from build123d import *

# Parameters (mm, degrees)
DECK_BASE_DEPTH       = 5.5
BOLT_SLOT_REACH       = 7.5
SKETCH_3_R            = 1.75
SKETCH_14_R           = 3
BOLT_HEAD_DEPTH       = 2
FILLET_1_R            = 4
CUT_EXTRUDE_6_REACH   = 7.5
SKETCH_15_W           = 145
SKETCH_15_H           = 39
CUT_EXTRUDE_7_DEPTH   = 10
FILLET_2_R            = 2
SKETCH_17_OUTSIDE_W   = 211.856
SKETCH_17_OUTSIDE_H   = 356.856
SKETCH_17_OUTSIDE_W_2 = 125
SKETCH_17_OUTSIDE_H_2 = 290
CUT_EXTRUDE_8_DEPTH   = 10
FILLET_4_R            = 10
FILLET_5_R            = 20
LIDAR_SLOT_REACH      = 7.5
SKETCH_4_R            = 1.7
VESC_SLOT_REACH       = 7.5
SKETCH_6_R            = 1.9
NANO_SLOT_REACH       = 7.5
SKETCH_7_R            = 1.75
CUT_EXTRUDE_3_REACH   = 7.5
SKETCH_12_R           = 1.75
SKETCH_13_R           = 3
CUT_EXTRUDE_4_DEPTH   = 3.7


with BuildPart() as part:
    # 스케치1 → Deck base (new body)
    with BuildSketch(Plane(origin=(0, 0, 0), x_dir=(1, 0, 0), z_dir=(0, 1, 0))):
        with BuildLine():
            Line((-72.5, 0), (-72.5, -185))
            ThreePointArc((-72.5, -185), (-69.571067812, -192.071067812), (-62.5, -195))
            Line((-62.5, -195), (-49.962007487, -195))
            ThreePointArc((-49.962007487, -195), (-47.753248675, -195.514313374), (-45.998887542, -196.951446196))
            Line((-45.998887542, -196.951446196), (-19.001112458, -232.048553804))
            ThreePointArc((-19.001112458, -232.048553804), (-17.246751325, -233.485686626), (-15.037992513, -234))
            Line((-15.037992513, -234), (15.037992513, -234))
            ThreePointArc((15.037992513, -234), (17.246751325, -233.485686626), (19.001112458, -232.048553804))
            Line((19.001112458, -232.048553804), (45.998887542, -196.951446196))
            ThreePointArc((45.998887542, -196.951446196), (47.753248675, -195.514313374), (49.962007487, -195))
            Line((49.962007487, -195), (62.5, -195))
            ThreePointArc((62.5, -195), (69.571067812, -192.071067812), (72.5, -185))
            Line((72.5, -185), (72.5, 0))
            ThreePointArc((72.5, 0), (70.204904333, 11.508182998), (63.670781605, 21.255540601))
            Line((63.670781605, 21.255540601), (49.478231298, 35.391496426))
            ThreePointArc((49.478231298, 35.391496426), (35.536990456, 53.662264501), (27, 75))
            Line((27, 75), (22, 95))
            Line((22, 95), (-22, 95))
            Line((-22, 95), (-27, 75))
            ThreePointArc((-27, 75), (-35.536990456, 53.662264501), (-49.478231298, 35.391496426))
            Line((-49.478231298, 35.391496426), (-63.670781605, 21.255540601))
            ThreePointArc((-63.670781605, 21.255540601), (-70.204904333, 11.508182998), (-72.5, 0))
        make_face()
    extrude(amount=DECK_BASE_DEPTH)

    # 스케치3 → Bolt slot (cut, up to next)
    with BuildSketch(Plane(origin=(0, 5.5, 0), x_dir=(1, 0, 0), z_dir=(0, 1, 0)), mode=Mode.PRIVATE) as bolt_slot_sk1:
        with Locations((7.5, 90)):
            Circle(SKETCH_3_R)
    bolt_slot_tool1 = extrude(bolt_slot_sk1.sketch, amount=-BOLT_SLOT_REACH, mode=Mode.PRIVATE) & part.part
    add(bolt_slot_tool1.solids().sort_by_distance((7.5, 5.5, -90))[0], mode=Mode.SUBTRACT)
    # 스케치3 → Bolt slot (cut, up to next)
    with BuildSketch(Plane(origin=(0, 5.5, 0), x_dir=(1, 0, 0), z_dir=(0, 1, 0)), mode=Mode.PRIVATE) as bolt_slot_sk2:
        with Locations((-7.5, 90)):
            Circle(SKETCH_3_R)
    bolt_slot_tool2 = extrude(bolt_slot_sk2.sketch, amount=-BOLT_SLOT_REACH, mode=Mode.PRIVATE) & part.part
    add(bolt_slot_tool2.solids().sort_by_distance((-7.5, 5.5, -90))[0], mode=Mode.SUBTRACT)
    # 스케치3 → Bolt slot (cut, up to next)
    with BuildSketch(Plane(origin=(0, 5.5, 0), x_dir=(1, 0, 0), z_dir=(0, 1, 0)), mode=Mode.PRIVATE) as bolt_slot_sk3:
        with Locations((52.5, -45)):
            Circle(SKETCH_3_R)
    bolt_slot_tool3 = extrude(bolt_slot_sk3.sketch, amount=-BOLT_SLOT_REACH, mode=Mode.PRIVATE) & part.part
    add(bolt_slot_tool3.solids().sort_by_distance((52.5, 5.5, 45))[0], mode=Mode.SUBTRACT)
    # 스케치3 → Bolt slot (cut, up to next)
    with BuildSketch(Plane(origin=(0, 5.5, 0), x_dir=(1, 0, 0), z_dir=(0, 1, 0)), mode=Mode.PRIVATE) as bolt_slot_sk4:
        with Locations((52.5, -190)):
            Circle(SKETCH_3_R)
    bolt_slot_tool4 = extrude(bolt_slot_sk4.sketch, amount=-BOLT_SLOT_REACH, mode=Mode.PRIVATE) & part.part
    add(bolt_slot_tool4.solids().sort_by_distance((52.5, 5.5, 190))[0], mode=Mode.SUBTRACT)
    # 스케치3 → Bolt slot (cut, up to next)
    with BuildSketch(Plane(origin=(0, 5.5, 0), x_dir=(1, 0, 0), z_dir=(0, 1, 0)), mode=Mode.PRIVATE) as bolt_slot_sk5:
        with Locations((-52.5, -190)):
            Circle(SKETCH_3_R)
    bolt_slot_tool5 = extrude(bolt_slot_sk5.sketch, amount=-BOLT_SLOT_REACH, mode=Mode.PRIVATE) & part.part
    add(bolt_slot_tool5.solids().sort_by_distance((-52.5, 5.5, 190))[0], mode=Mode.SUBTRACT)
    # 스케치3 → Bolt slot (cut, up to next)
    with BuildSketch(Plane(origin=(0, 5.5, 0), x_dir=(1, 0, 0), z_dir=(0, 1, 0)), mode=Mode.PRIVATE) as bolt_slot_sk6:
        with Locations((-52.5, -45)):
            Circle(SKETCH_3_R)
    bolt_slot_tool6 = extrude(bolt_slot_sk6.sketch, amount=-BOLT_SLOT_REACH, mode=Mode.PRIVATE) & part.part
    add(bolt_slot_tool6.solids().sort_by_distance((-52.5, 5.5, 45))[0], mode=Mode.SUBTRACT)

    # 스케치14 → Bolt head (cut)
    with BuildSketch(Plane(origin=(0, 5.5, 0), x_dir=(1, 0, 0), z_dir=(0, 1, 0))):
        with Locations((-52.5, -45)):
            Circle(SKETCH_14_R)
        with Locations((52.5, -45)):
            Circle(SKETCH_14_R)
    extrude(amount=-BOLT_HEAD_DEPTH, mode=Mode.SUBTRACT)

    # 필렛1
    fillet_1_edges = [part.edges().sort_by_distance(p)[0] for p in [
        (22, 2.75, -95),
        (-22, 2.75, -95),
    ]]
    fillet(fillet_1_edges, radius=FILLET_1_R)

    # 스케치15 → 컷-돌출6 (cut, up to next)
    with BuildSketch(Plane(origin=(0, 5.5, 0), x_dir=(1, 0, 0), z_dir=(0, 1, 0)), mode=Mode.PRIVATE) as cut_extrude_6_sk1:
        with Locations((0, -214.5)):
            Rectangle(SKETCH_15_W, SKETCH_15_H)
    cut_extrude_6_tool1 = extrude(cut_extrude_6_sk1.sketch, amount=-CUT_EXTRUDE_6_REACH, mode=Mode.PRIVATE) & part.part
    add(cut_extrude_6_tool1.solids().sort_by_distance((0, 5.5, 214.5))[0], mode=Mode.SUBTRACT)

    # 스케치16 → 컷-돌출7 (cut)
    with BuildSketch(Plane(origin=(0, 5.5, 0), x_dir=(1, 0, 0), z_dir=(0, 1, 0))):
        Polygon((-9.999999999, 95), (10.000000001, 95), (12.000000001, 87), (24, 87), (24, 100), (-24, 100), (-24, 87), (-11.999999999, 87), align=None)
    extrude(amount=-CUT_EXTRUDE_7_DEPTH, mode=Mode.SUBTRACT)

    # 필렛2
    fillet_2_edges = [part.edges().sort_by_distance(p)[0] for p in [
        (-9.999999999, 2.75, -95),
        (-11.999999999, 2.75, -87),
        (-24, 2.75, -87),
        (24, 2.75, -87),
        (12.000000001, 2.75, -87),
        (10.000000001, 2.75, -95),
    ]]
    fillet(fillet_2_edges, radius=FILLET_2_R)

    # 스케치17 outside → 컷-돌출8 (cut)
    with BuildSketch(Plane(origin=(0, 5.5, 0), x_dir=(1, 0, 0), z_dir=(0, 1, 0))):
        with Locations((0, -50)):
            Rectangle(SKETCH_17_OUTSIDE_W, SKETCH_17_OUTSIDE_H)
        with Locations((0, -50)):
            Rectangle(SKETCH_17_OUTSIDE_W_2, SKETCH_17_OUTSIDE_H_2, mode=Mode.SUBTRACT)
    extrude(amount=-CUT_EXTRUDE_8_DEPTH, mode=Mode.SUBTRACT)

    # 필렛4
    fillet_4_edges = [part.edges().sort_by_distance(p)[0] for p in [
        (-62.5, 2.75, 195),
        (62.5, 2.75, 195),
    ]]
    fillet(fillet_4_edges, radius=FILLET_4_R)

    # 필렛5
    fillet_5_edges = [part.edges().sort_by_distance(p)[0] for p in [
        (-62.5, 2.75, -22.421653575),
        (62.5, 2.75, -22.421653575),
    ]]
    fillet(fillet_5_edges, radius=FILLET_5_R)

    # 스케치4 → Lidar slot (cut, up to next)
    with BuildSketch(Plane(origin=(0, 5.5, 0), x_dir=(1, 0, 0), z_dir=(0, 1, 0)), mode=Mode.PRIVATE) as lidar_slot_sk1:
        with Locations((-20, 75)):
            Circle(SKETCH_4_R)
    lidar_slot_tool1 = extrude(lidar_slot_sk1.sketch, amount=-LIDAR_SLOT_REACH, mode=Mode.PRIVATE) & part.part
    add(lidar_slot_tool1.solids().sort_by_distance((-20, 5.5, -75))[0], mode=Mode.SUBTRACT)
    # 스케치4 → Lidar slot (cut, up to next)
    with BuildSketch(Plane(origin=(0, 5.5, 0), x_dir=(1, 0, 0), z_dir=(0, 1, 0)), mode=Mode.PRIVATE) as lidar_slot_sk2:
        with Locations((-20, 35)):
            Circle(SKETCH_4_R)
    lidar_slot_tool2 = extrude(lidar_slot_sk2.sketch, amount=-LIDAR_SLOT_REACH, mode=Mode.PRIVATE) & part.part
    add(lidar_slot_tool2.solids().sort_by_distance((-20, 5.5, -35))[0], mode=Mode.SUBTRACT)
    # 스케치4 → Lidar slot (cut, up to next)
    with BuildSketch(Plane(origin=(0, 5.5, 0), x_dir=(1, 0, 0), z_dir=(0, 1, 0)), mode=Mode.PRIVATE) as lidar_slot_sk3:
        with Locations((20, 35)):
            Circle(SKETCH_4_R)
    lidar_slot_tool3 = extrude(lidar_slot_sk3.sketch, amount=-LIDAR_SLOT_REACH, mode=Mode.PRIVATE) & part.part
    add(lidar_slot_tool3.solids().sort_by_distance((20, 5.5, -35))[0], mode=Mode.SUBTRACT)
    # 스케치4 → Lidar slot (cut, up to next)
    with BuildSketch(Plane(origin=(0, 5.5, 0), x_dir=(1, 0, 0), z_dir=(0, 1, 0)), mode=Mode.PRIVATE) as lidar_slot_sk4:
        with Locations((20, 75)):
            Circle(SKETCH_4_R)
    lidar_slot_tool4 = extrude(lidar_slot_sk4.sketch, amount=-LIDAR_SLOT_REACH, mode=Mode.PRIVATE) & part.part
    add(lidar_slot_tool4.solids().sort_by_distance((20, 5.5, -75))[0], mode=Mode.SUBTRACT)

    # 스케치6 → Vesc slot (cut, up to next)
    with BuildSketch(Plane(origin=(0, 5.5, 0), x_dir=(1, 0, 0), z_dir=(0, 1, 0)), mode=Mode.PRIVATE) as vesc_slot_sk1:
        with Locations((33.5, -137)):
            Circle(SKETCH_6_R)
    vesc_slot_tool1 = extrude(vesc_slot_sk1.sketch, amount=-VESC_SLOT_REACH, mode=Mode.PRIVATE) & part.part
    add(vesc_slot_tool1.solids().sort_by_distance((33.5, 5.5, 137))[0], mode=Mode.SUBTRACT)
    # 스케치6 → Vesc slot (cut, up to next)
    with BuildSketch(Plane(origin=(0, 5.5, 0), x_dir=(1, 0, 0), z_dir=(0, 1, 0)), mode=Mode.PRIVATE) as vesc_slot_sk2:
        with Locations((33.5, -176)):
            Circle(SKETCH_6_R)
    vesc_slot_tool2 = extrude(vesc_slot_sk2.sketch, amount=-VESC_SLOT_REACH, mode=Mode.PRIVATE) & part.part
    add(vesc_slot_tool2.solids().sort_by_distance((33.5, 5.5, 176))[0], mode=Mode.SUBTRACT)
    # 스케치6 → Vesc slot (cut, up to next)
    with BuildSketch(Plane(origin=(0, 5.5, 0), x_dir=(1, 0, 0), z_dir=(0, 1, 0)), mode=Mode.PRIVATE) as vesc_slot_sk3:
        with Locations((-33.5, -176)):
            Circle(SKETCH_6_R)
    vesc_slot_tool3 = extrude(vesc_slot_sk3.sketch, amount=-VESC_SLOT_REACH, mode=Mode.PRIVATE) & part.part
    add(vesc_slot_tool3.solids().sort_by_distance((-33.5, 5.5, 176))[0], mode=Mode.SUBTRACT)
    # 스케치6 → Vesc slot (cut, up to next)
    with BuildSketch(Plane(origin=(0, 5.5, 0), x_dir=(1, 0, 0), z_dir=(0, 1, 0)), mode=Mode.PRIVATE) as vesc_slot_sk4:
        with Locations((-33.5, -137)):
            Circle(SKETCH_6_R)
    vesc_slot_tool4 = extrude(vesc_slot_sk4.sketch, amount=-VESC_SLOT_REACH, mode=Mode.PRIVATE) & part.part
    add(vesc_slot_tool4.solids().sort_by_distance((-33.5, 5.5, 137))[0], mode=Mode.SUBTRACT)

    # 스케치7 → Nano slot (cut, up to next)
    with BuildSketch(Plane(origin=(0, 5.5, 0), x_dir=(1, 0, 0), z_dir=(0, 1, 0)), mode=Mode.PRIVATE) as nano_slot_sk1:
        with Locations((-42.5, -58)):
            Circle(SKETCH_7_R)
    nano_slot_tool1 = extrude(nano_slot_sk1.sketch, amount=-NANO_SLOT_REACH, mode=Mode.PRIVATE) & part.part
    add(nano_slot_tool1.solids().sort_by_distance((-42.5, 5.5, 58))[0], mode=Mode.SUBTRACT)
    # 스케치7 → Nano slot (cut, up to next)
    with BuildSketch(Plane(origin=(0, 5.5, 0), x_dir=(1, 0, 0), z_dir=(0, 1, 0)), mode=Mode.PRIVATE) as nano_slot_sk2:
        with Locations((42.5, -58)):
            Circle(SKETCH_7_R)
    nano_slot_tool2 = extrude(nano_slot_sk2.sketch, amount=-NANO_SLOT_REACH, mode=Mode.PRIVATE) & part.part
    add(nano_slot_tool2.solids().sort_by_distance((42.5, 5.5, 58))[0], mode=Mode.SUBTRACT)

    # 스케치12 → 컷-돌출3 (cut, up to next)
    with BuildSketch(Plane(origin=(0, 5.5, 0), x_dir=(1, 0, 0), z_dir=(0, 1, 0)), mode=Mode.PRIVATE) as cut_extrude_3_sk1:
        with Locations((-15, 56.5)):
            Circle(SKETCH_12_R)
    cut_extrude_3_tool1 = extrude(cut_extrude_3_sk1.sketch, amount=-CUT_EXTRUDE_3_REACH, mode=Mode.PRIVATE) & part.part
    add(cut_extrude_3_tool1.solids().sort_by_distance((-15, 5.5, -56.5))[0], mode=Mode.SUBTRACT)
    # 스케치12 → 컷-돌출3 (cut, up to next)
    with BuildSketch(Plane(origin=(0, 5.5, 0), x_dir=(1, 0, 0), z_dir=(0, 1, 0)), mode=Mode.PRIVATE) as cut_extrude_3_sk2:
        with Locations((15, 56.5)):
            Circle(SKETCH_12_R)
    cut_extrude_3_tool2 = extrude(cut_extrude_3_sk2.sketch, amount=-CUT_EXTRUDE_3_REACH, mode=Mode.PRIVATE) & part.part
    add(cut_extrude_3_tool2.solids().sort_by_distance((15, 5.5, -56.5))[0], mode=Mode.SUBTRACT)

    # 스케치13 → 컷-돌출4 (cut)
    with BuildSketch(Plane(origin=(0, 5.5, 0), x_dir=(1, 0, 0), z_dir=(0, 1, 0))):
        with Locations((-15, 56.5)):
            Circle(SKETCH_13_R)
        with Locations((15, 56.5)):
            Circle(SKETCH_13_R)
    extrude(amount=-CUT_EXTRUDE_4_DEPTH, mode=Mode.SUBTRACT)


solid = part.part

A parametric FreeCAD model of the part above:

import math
import FreeCAD as App
import Part
import Sketcher
from FreeCAD import Vector
Q = App.Units.Quantity


def edges_at(feature, points):
    """Names of the edges that pass closest to the given points."""
    edges = feature.Shape.Edges
    near = lambda p: min(range(len(edges)), key=lambda i: edges[i].distToShape(Part.Vertex(*p))[0])
    return sorted({f"Edge{near(p) + 1}" for p in points})

doc = App.newDocument("Part")
params = doc.addObject("Spreadsheet::Sheet", "Params")
for row, (alias, value) in enumerate([
    ("sketch1_radius", "10 mm"),
    ("sketch1_radius2", "5 mm"),
    ("sketch1_radius3", "30 mm"),
    ("sketch1_radius4", "85 mm"),
    ("sketch1_width", "44 mm"),
    ("pad1_length", "5.5 mm"),
    ("sketch2_diameter", "3.5 mm"),
    ("sketch3_diameter", "3.5 mm"),
    ("sketch4_diameter", "3.5 mm"),
    ("sketch5_diameter", "3.5 mm"),
    ("sketch6_diameter", "3.5 mm"),
    ("sketch7_diameter", "3.5 mm"),
    ("sketch8_diameter", "6 mm"),
    ("pocket7_length", "2 mm"),
    ("fillet_radius", "4 mm"),
    ("sketch9_width", "145 mm"),
    ("sketch9_height", "39 mm"),
    ("sketch10_width", "20 mm"),
    ("sketch10_width2", "12 mm"),
    ("sketch10_width3", "48 mm"),
    ("sketch10_height", "13 mm"),
    ("pocket9_length", "10 mm"),
    ("fillet2_radius", "2 mm"),
    ("sketch11_width", "125 mm"),
    ("sketch11_height", "290 mm"),
    ("pocket10_length", "10 mm"),
    ("fillet3_radius", "10 mm"),
    ("fillet4_radius", "20 mm"),
    ("sketch12_diameter", "3.4 mm"),
    ("sketch13_diameter", "3.4 mm"),
    ("sketch14_diameter", "3.4 mm"),
    ("sketch15_diameter", "3.4 mm"),
    ("sketch16_diameter", "3.8 mm"),
    ("sketch17_diameter", "3.8 mm"),
    ("sketch18_diameter", "3.8 mm"),
    ("sketch19_diameter", "3.8 mm"),
    ("sketch20_diameter", "3.5 mm"),
    ("sketch21_diameter", "3.5 mm"),
    ("sketch22_diameter", "3.5 mm"),
    ("sketch23_diameter", "3.5 mm"),
    ("sketch24_diameter", "6 mm"),
    ("pocket23_length", "3.7 mm"),
], start=1):
    params.set(f"A{row}", alias)
    params.set(f"B{row}", "=" + value)
    params.setAlias(f"B{row}", alias)

body = doc.addObject("PartDesign::Body", "Body")

sketch1 = body.newObject("Sketcher::SketchObject", "Sketch")
sketch1.AttachmentSupport = (doc.getObject("XZ_Plane"), [""])
sketch1.MapMode = "FlatFace"
sketch1.addGeometry([
    Part.LineSegment(Vector(-72.5, 0, 0), Vector(-72.5, 185, 0)),
    Part.ArcOfCircle(Part.Circle(Vector(-62.5, 185, 0), Vector(0, 0, 1), 10), math.radians(90), math.radians(180)),
    Part.LineSegment(Vector(-62.5, 195, 0), Vector(-49.962007, 195, 0)),
    Part.ArcOfCircle(Part.Circle(Vector(-49.962007, 200, 0), Vector(0, 0, 1), 5), math.radians(-90), math.radians(-37.568592)),
    Part.LineSegment(Vector(-45.998888, 196.951446, 0), Vector(-19.001112, 232.048554, 0)),
    Part.ArcOfCircle(Part.Circle(Vector(-15.037993, 229, 0), Vector(0, 0, 1), 5), math.radians(90), math.radians(142.431408)),
    Part.LineSegment(Vector(-15.037993, 234, 0), Vector(15.037993, 234, 0)),
    Part.ArcOfCircle(Part.Circle(Vector(15.037993, 229, 0), Vector(0, 0, 1), 5), math.radians(37.568592), math.radians(90)),
    Part.LineSegment(Vector(19.001112, 232.048554, 0), Vector(45.998888, 196.951446, 0)),
    Part.ArcOfCircle(Part.Circle(Vector(49.962007, 200, 0), Vector(0, 0, 1), 5), math.radians(-142.431408), math.radians(-90)),
    Part.LineSegment(Vector(49.962007, 195, 0), Vector(62.5, 195, 0)),
    Part.ArcOfCircle(Part.Circle(Vector(62.5, 185, 0), Vector(0, 0, 1), 10), math.radians(0), math.radians(90)),
    Part.LineSegment(Vector(72.5, 185, 0), Vector(72.5, 0, 0)),
    Part.ArcOfCircle(Part.Circle(Vector(42.5, 0, 0), Vector(0, 0, 1), 30), math.radians(-45.114465), math.radians(0)),
    Part.LineSegment(Vector(63.670782, -21.255541, 0), Vector(49.478231, -35.391496, 0)),
    Part.ArcOfCircle(Part.Circle(Vector(109.462113, -95.615528, 0), Vector(0, 0, 1), 85), math.radians(134.885535), math.radians(165.963757)),
    Part.LineSegment(Vector(27, -75, 0), Vector(22, -95, 0)),
    Part.LineSegment(Vector(22, -95, 0), Vector(-22, -95, 0)),
    Part.LineSegment(Vector(-22, -95, 0), Vector(-27, -75, 0)),
    Part.ArcOfCircle(Part.Circle(Vector(-109.462113, -95.615528, 0), Vector(0, 0, 1), 85), math.radians(14.036243), math.radians(45.114465)),
    Part.LineSegment(Vector(-49.478231, -35.391496, 0), Vector(-63.670782, -21.255541, 0)),
    Part.ArcOfCircle(Part.Circle(Vector(-42.5, 0, 0), Vector(0, 0, 1), 30), math.radians(180), math.radians(225.114465)),
], False)
sketch1.addConstraint([
    Sketcher.Constraint("Tangent", 0, 2, 1, 2),
    Sketcher.Constraint("Tangent", 1, 1, 2, 1),
    Sketcher.Constraint("Tangent", 2, 2, 3, 1),
    Sketcher.Constraint("Tangent", 3, 2, 4, 1),
    Sketcher.Constraint("Tangent", 4, 2, 5, 2),
    Sketcher.Constraint("Tangent", 5, 1, 6, 1),
    Sketcher.Constraint("Tangent", 6, 2, 7, 2),
    Sketcher.Constraint("Tangent", 7, 1, 8, 1),
    Sketcher.Constraint("Tangent", 8, 2, 9, 1),
    Sketcher.Constraint("Tangent", 9, 2, 10, 1),
    Sketcher.Constraint("Tangent", 10, 2, 11, 2),
    Sketcher.Constraint("Tangent", 11, 1, 12, 1),
    Sketcher.Constraint("Tangent", 12, 2, 13, 2),
    Sketcher.Constraint("Tangent", 13, 1, 14, 1),
    Sketcher.Constraint("Tangent", 14, 2, 15, 1),
    Sketcher.Constraint("Tangent", 15, 2, 16, 1),
    Sketcher.Constraint("Coincident", 16, 2, 17, 1),
    Sketcher.Constraint("Coincident", 17, 2, 18, 1),
    Sketcher.Constraint("Tangent", 18, 2, 19, 1),
    Sketcher.Constraint("Tangent", 19, 2, 20, 1),
    Sketcher.Constraint("Tangent", 20, 2, 21, 2),
    Sketcher.Constraint("Tangent", 21, 1, 0, 1),
    Sketcher.Constraint("Vertical", 0),
    Sketcher.Constraint("Horizontal", 2),
    Sketcher.Constraint("Horizontal", 6),
    Sketcher.Constraint("Horizontal", 10),
    Sketcher.Constraint("Vertical", 12),
    Sketcher.Constraint("Horizontal", 17),
    Sketcher.Constraint("Equal", 3, 5),
    Sketcher.Constraint("Equal", 5, 7),
    Sketcher.Constraint("Equal", 7, 9),
    Sketcher.Constraint("Equal", 1, 11),
    Sketcher.Constraint("Equal", 15, 19),
    Sketcher.Constraint("Equal", 13, 21),
    Sketcher.Constraint("Symmetric", 13, 3, 21, 3, -1, 1),
    Sketcher.Constraint("Symmetric", 3, 3, 9, 3, -2),
    Sketcher.Constraint("Symmetric", 15, 3, 19, 3, -2),
    Sketcher.Constraint("PointOnObject", 13, 3, -1),
    Sketcher.Constraint("Horizontal", 4, 2, 7, 1),
    Sketcher.Constraint("Horizontal", 15, 2, 18, 2),
    Sketcher.Constraint("Radius", 1, Q("10 mm")),
    Sketcher.Constraint("Radius", 3, Q("5 mm")),
    Sketcher.Constraint("Radius", 13, Q("30 mm")),
    Sketcher.Constraint("Radius", 15, Q("85 mm")),
    Sketcher.Constraint("DistanceX", 17, 2, 17, 1, Q("44 mm")),
    Sketcher.Constraint("DistanceY", 0, 1, 0, 2, Q("185 mm")),
    Sketcher.Constraint("DistanceY", -1, 1, 5, 3, Q("229 mm")),
    Sketcher.Constraint("DistanceX", -1, 1, 15, 2, Q("27 mm")),
    Sketcher.Constraint("DistanceY", 15, 2, -1, 1, Q("75 mm")),
    Sketcher.Constraint("DistanceY", 16, 2, -1, 1, Q("95 mm")),
    Sketcher.Constraint("DistanceX", 3, 3, 7, 3, Q("65 mm")),
    Sketcher.Constraint("DistanceX", 1, 3, 11, 3, Q("125 mm")),
    Sketcher.Constraint("DistanceX", 2, 1, 2, 2, Q("12.537993 mm")),
])
sketch1.setExpression("Constraints[40]", "Params.sketch1_radius")
sketch1.setExpression("Constraints[41]", "Params.sketch1_radius2")
sketch1.setExpression("Constraints[42]", "Params.sketch1_radius3")
sketch1.setExpression("Constraints[43]", "Params.sketch1_radius4")
sketch1.setExpression("Constraints[44]", "Params.sketch1_width")
pad1 = body.newObject("PartDesign::Pad", "Pad")
pad1.Profile = sketch1
pad1.setExpression("Length", "Params.pad1_length")
pad1.Reversed = True

sketch2 = body.newObject("Sketcher::SketchObject", "Sketch001")
sketch2.AttachmentSupport = (doc.getObject("XZ_Plane"), [""])
sketch2.MapMode = "FlatFace"
sketch2.AttachmentOffset = App.Placement(Vector(0, 0, -5.5), App.Rotation())
sketch2.addGeometry(Part.Circle(Vector(7.5, -90, 0), Vector(0, 0, 1), 1.75), False)
sketch2.addConstraint([
    Sketcher.Constraint("Diameter", 0, Q("3.5 mm")),
    Sketcher.Constraint("DistanceY", 0, 3, -1, 1, Q("90 mm")),
    Sketcher.Constraint("DistanceX", -1, 1, 0, 3, Q("7.5 mm")),
])
sketch2.setExpression("Constraints[0]", "Params.sketch2_diameter")
pocket1 = body.newObject("PartDesign::Pocket", "Pocket")
pocket1.Profile = sketch2
pocket1.Type = "UpToFirst"
pocket1.Reversed = True

sketch3 = body.newObject("Sketcher::SketchObject", "Sketch002")
sketch3.AttachmentSupport = (doc.getObject("XZ_Plane"), [""])
sketch3.MapMode = "FlatFace"
sketch3.AttachmentOffset = App.Placement(Vector(0, 0, -5.5), App.Rotation())
sketch3.addGeometry(Part.Circle(Vector(-7.5, -90, 0), Vector(0, 0, 1), 1.75), False)
sketch3.addConstraint([
    Sketcher.Constraint("Diameter", 0, Q("3.5 mm")),
    Sketcher.Constraint("DistanceY", 0, 3, -1, 1, Q("90 mm")),
    Sketcher.Constraint("DistanceX", 0, 3, -1, 1, Q("7.5 mm")),
])
sketch3.setExpression("Constraints[0]", "Params.sketch3_diameter")
pocket2 = body.newObject("PartDesign::Pocket", "Pocket001")
pocket2.Profile = sketch3
pocket2.Type = "UpToFirst"
pocket2.Reversed = True

sketch4 = body.newObject("Sketcher::SketchObject", "Sketch003")
sketch4.AttachmentSupport = (doc.getObject("XZ_Plane"), [""])
sketch4.MapMode = "FlatFace"
sketch4.AttachmentOffset = App.Placement(Vector(0, 0, -5.5), App.Rotation())
sketch4.addGeometry(Part.Circle(Vector(52.5, 45, 0), Vector(0, 0, 1), 1.75), False)
sketch4.addConstraint([
    Sketcher.Constraint("Diameter", 0, Q("3.5 mm")),
    Sketcher.Constraint("DistanceY", -1, 1, 0, 3, Q("45 mm")),
    Sketcher.Constraint("DistanceX", -1, 1, 0, 3, Q("52.5 mm")),
])
sketch4.setExpression("Constraints[0]", "Params.sketch4_diameter")
pocket3 = body.newObject("PartDesign::Pocket", "Pocket002")
pocket3.Profile = sketch4
pocket3.Type = "UpToFirst"
pocket3.Reversed = True

sketch5 = body.newObject("Sketcher::SketchObject", "Sketch004")
sketch5.AttachmentSupport = (doc.getObject("XZ_Plane"), [""])
sketch5.MapMode = "FlatFace"
sketch5.AttachmentOffset = App.Placement(Vector(0, 0, -5.5), App.Rotation())
sketch5.addGeometry(Part.Circle(Vector(52.5, 190, 0), Vector(0, 0, 1), 1.75), False)
sketch5.addConstraint([
    Sketcher.Constraint("Diameter", 0, Q("3.5 mm")),
    Sketcher.Constraint("DistanceY", -1, 1, 0, 3, Q("190 mm")),
    Sketcher.Constraint("DistanceX", -1, 1, 0, 3, Q("52.5 mm")),
])
sketch5.setExpression("Constraints[0]", "Params.sketch5_diameter")
pocket4 = body.newObject("PartDesign::Pocket", "Pocket003")
pocket4.Profile = sketch5
pocket4.Type = "UpToFirst"
pocket4.Reversed = True

sketch6 = body.newObject("Sketcher::SketchObject", "Sketch005")
sketch6.AttachmentSupport = (doc.getObject("XZ_Plane"), [""])
sketch6.MapMode = "FlatFace"
sketch6.AttachmentOffset = App.Placement(Vector(0, 0, -5.5), App.Rotation())
sketch6.addGeometry(Part.Circle(Vector(-52.5, 190, 0), Vector(0, 0, 1), 1.75), False)
sketch6.addConstraint([
    Sketcher.Constraint("Diameter", 0, Q("3.5 mm")),
    Sketcher.Constraint("DistanceY", -1, 1, 0, 3, Q("190 mm")),
    Sketcher.Constraint("DistanceX", 0, 3, -1, 1, Q("52.5 mm")),
])
sketch6.setExpression("Constraints[0]", "Params.sketch6_diameter")
pocket5 = body.newObject("PartDesign::Pocket", "Pocket004")
pocket5.Profile = sketch6
pocket5.Type = "UpToFirst"
pocket5.Reversed = True

sketch7 = body.newObject("Sketcher::SketchObject", "Sketch006")
sketch7.AttachmentSupport = (doc.getObject("XZ_Plane"), [""])
sketch7.MapMode = "FlatFace"
sketch7.AttachmentOffset = App.Placement(Vector(0, 0, -5.5), App.Rotation())
sketch7.addGeometry(Part.Circle(Vector(-52.5, 45, 0), Vector(0, 0, 1), 1.75), False)
sketch7.addConstraint([
    Sketcher.Constraint("Diameter", 0, Q("3.5 mm")),
    Sketcher.Constraint("DistanceY", -1, 1, 0, 3, Q("45 mm")),
    Sketcher.Constraint("DistanceX", 0, 3, -1, 1, Q("52.5 mm")),
])
sketch7.setExpression("Constraints[0]", "Params.sketch7_diameter")
pocket6 = body.newObject("PartDesign::Pocket", "Pocket005")
pocket6.Profile = sketch7
pocket6.Type = "UpToFirst"
pocket6.Reversed = True

sketch8 = body.newObject("Sketcher::SketchObject", "Sketch007")
sketch8.AttachmentSupport = (doc.getObject("XZ_Plane"), [""])
sketch8.MapMode = "FlatFace"
sketch8.AttachmentOffset = App.Placement(Vector(0, 0, -5.5), App.Rotation())
sketch8.addGeometry([
    Part.Circle(Vector(-52.5, 45, 0), Vector(0, 0, 1), 3),
    Part.Circle(Vector(52.5, 45, 0), Vector(0, 0, 1), 3),
], False)
sketch8.addConstraint([
    Sketcher.Constraint("Equal", 0, 1),
    Sketcher.Constraint("Symmetric", 0, 3, 1, 3, -2),
    Sketcher.Constraint("Diameter", 0, Q("6 mm")),
    Sketcher.Constraint("DistanceY", -1, 1, 0, 3, Q("45 mm")),
    Sketcher.Constraint("DistanceX", 0, 3, 1, 3, Q("105 mm")),
])
sketch8.setExpression("Constraints[2]", "Params.sketch8_diameter")
pocket7 = body.newObject("PartDesign::Pocket", "Pocket006")
pocket7.Profile = sketch8
pocket7.setExpression("Length", "Params.pocket7_length")
pocket7.Reversed = True
doc.recompute()

fillet = body.newObject("PartDesign::Fillet", "Fillet")
fillet.Base = (pocket7, edges_at(pocket7, [(22, 2.75, -95), (-22, 2.75, -95)]))
fillet.setExpression("Radius", "Params.fillet_radius")

sketch9 = body.newObject("Sketcher::SketchObject", "Sketch008")
sketch9.AttachmentSupport = (doc.getObject("XZ_Plane"), [""])
sketch9.MapMode = "FlatFace"
sketch9.AttachmentOffset = App.Placement(Vector(0, 0, -5.5), App.Rotation())
sketch9.addGeometry([
    Part.LineSegment(Vector(-72.5, 195, 0), Vector(-72.5, 234, 0)),
    Part.LineSegment(Vector(-72.5, 234, 0), Vector(72.5, 234, 0)),
    Part.LineSegment(Vector(72.5, 234, 0), Vector(72.5, 195, 0)),
    Part.LineSegment(Vector(72.5, 195, 0), Vector(-72.5, 195, 0)),
], False)
sketch9.addConstraint([
    Sketcher.Constraint("Coincident", 0, 2, 1, 1),
    Sketcher.Constraint("Coincident", 1, 2, 2, 1),
    Sketcher.Constraint("Coincident", 2, 2, 3, 1),
    Sketcher.Constraint("Coincident", 3, 2, 0, 1),
    Sketcher.Constraint("Vertical", 0),
    Sketcher.Constraint("Horizontal", 1),
    Sketcher.Constraint("Vertical", 2),
    Sketcher.Constraint("Horizontal", 3),
    Sketcher.Constraint("DistanceX", 1, 1, 1, 2, Q("145 mm")),
    Sketcher.Constraint("DistanceY", 0, 1, 0, 2, Q("39 mm")),
    Sketcher.Constraint("DistanceY", -1, 1, 0, 2, Q("234 mm")),
    Sketcher.Constraint("DistanceX", 0, 2, -1, 1, Q("72.5 mm")),
])
sketch9.setExpression("Constraints[8]", "Params.sketch9_width")
sketch9.setExpression("Constraints[9]", "Params.sketch9_height")
pocket8 = body.newObject("PartDesign::Pocket", "Pocket007")
pocket8.Profile = sketch9
pocket8.Type = "UpToFirst"
pocket8.Reversed = True

sketch10 = body.newObject("Sketcher::SketchObject", "Sketch009")
sketch10.AttachmentSupport = (doc.getObject("XZ_Plane"), [""])
sketch10.MapMode = "FlatFace"
sketch10.AttachmentOffset = App.Placement(Vector(0, 0, -5.5), App.Rotation())
sketch10.addGeometry([
    Part.LineSegment(Vector(-10, -95, 0), Vector(10, -95, 0)),
    Part.LineSegment(Vector(10, -95, 0), Vector(12, -87, 0)),
    Part.LineSegment(Vector(12, -87, 0), Vector(24, -87, 0)),
    Part.LineSegment(Vector(24, -87, 0), Vector(24, -100, 0)),
    Part.LineSegment(Vector(24, -100, 0), Vector(-24, -100, 0)),
    Part.LineSegment(Vector(-24, -100, 0), Vector(-24, -87, 0)),
    Part.LineSegment(Vector(-24, -87, 0), Vector(-12, -87, 0)),
    Part.LineSegment(Vector(-12, -87, 0), Vector(-10, -95, 0)),
], False)
sketch10.addConstraint([
    Sketcher.Constraint("Coincident", 0, 2, 1, 1),
    Sketcher.Constraint("Coincident", 1, 2, 2, 1),
    Sketcher.Constraint("Coincident", 2, 2, 3, 1),
    Sketcher.Constraint("Coincident", 3, 2, 4, 1),
    Sketcher.Constraint("Coincident", 4, 2, 5, 1),
    Sketcher.Constraint("Coincident", 5, 2, 6, 1),
    Sketcher.Constraint("Coincident", 6, 2, 7, 1),
    Sketcher.Constraint("Coincident", 7, 2, 0, 1),
    Sketcher.Constraint("Horizontal", 0),
    Sketcher.Constraint("Horizontal", 2),
    Sketcher.Constraint("Vertical", 3),
    Sketcher.Constraint("Horizontal", 4),
    Sketcher.Constraint("Vertical", 5),
    Sketcher.Constraint("Horizontal", 6),
    Sketcher.Constraint("Symmetric", 2, 2, 5, 2, -2),
    Sketcher.Constraint("Equal", 2, 6),
    Sketcher.Constraint("Equal", 1, 7),
    Sketcher.Constraint("DistanceX", 0, 1, 0, 2, Q("20 mm")),
    Sketcher.Constraint("DistanceX", 2, 1, 2, 2, Q("12 mm")),
    Sketcher.Constraint("DistanceX", 4, 2, 4, 1, Q("48 mm")),
    Sketcher.Constraint("DistanceY", 3, 2, 3, 1, Q("13 mm")),
    Sketcher.Constraint("DistanceY", 0, 2, -1, 1, Q("95 mm")),
    Sketcher.Constraint("DistanceY", 1, 2, -1, 1, Q("87 mm")),
])
sketch10.setExpression("Constraints[17]", "Params.sketch10_width")
sketch10.setExpression("Constraints[18]", "Params.sketch10_width2")
sketch10.setExpression("Constraints[19]", "Params.sketch10_width3")
sketch10.setExpression("Constraints[20]", "Params.sketch10_height")
pocket9 = body.newObject("PartDesign::Pocket", "Pocket008")
pocket9.Profile = sketch10
pocket9.setExpression("Length", "Params.pocket9_length")
pocket9.Reversed = True
doc.recompute()

fillet2 = body.newObject("PartDesign::Fillet", "Fillet001")
fillet2.Base = (pocket9, edges_at(pocket9, [
    (-10, 2.75, -95),
    (-12, 2.75, -87),
    (-24, 2.75, -87),
    (24, 2.75, -87),
    (12, 2.75, -87),
    (10, 2.75, -95),
]))
fillet2.setExpression("Radius", "Params.fillet2_radius")

sketch11 = body.newObject("Sketcher::SketchObject", "Sketch010")
sketch11.AttachmentSupport = (doc.getObject("XZ_Plane"), [""])
sketch11.MapMode = "FlatFace"
sketch11.AttachmentOffset = App.Placement(Vector(0, 0, -5.5), App.Rotation())
sketch11.addGeometry([
    Part.LineSegment(Vector(-105.928, -128.428, 0), Vector(-105.928, 228.428, 0)),
    Part.LineSegment(Vector(-105.928, 228.428, 0), Vector(105.928, 228.428, 0)),
    Part.LineSegment(Vector(105.928, 228.428, 0), Vector(105.928, -128.428, 0)),
    Part.LineSegment(Vector(105.928, -128.428, 0), Vector(-105.928, -128.428, 0)),
    Part.LineSegment(Vector(62.5, 195, 0), Vector(-62.5, 195, 0)),
    Part.LineSegment(Vector(-62.5, 195, 0), Vector(-62.5, -95, 0)),
    Part.LineSegment(Vector(-62.5, -95, 0), Vector(62.5, -95, 0)),
    Part.LineSegment(Vector(62.5, -95, 0), Vector(62.5, 195, 0)),
], False)
sketch11.addConstraint([
    Sketcher.Constraint("Coincident", 0, 2, 1, 1),
    Sketcher.Constraint("Coincident", 1, 2, 2, 1),
    Sketcher.Constraint("Coincident", 2, 2, 3, 1),
    Sketcher.Constraint("Coincident", 3, 2, 0, 1),
    Sketcher.Constraint("Coincident", 4, 2, 5, 1),
    Sketcher.Constraint("Coincident", 5, 2, 6, 1),
    Sketcher.Constraint("Coincident", 6, 2, 7, 1),
    Sketcher.Constraint("Coincident", 7, 2, 4, 1),
    Sketcher.Constraint("Vertical", 0),
    Sketcher.Constraint("Horizontal", 1),
    Sketcher.Constraint("Vertical", 2),
    Sketcher.Constraint("Horizontal", 3),
    Sketcher.Constraint("Horizontal", 4),
    Sketcher.Constraint("Vertical", 5),
    Sketcher.Constraint("Horizontal", 6),
    Sketcher.Constraint("Vertical", 7),
    Sketcher.Constraint("DistanceX", 4, 2, 4, 1, Q("125 mm")),
    Sketcher.Constraint("DistanceY", 5, 2, 5, 1, Q("290 mm")),
    Sketcher.Constraint("DistanceY", -1, 1, 4, 2, Q("195 mm")),
    Sketcher.Constraint("DistanceX", 4, 2, -1, 1, Q("62.5 mm")),
    Sketcher.Constraint("DistanceX", 1, 1, 1, 2, Q("211.856 mm")),
    Sketcher.Constraint("DistanceY", 0, 1, 0, 2, Q("356.856 mm")),
    Sketcher.Constraint("DistanceX", 0, 2, -1, 1, Q("105.928 mm")),
    Sketcher.Constraint("DistanceY", -1, 1, 0, 2, Q("228.428 mm")),
])
sketch11.setExpression("Constraints[16]", "Params.sketch11_width")
sketch11.setExpression("Constraints[17]", "Params.sketch11_height")
pocket10 = body.newObject("PartDesign::Pocket", "Pocket009")
pocket10.Profile = sketch11
pocket10.setExpression("Length", "Params.pocket10_length")
pocket10.Reversed = True
doc.recompute()

fillet3 = body.newObject("PartDesign::Fillet", "Fillet002")
fillet3.Base = (pocket10, edges_at(pocket10, [(-62.5, 2.75, 195), (62.5, 2.75, 195)]))
fillet3.setExpression("Radius", "Params.fillet3_radius")
doc.recompute()

fillet4 = body.newObject("PartDesign::Fillet", "Fillet003")
fillet4.Base = (fillet3, edges_at(fillet3, [(-62.5, 2.75, -22.422), (62.5, 2.75, -22.422)]))
fillet4.setExpression("Radius", "Params.fillet4_radius")

sketch12 = body.newObject("Sketcher::SketchObject", "Sketch011")
sketch12.AttachmentSupport = (doc.getObject("XZ_Plane"), [""])
sketch12.MapMode = "FlatFace"
sketch12.AttachmentOffset = App.Placement(Vector(0, 0, -5.5), App.Rotation())
sketch12.addGeometry(Part.Circle(Vector(-20, -75, 0), Vector(0, 0, 1), 1.7), False)
sketch12.addConstraint([
    Sketcher.Constraint("Diameter", 0, Q("3.4 mm")),
    Sketcher.Constraint("DistanceX", 0, 3, -1, 1, Q("20 mm")),
    Sketcher.Constraint("DistanceY", 0, 3, -1, 1, Q("75 mm")),
])
sketch12.setExpression("Constraints[0]", "Params.sketch12_diameter")
pocket11 = body.newObject("PartDesign::Pocket", "Pocket010")
pocket11.Profile = sketch12
pocket11.Type = "UpToFirst"
pocket11.Reversed = True

sketch13 = body.newObject("Sketcher::SketchObject", "Sketch012")
sketch13.AttachmentSupport = (doc.getObject("XZ_Plane"), [""])
sketch13.MapMode = "FlatFace"
sketch13.AttachmentOffset = App.Placement(Vector(0, 0, -5.5), App.Rotation())
sketch13.addGeometry(Part.Circle(Vector(-20, -35, 0), Vector(0, 0, 1), 1.7), False)
sketch13.addConstraint([
    Sketcher.Constraint("Diameter", 0, Q("3.4 mm")),
    Sketcher.Constraint("DistanceX", 0, 3, -1, 1, Q("20 mm")),
    Sketcher.Constraint("DistanceY", 0, 3, -1, 1, Q("35 mm")),
])
sketch13.setExpression("Constraints[0]", "Params.sketch13_diameter")
pocket12 = body.newObject("PartDesign::Pocket", "Pocket011")
pocket12.Profile = sketch13
pocket12.Type = "UpToFirst"
pocket12.Reversed = True

sketch14 = body.newObject("Sketcher::SketchObject", "Sketch013")
sketch14.AttachmentSupport = (doc.getObject("XZ_Plane"), [""])
sketch14.MapMode = "FlatFace"
sketch14.AttachmentOffset = App.Placement(Vector(0, 0, -5.5), App.Rotation())
sketch14.addGeometry(Part.Circle(Vector(20, -35, 0), Vector(0, 0, 1), 1.7), False)
sketch14.addConstraint([
    Sketcher.Constraint("Diameter", 0, Q("3.4 mm")),
    Sketcher.Constraint("DistanceX", -1, 1, 0, 3, Q("20 mm")),
    Sketcher.Constraint("DistanceY", 0, 3, -1, 1, Q("35 mm")),
])
sketch14.setExpression("Constraints[0]", "Params.sketch14_diameter")
pocket13 = body.newObject("PartDesign::Pocket", "Pocket012")
pocket13.Profile = sketch14
pocket13.Type = "UpToFirst"
pocket13.Reversed = True

sketch15 = body.newObject("Sketcher::SketchObject", "Sketch014")
sketch15.AttachmentSupport = (doc.getObject("XZ_Plane"), [""])
sketch15.MapMode = "FlatFace"
sketch15.AttachmentOffset = App.Placement(Vector(0, 0, -5.5), App.Rotation())
sketch15.addGeometry(Part.Circle(Vector(20, -75, 0), Vector(0, 0, 1), 1.7), False)
sketch15.addConstraint([
    Sketcher.Constraint("Diameter", 0, Q("3.4 mm")),
    Sketcher.Constraint("DistanceX", -1, 1, 0, 3, Q("20 mm")),
    Sketcher.Constraint("DistanceY", 0, 3, -1, 1, Q("75 mm")),
])
sketch15.setExpression("Constraints[0]", "Params.sketch15_diameter")
pocket14 = body.newObject("PartDesign::Pocket", "Pocket013")
pocket14.Profile = sketch15
pocket14.Type = "UpToFirst"
pocket14.Reversed = True

sketch16 = body.newObject("Sketcher::SketchObject", "Sketch015")
sketch16.AttachmentSupport = (doc.getObject("XZ_Plane"), [""])
sketch16.MapMode = "FlatFace"
sketch16.AttachmentOffset = App.Placement(Vector(0, 0, -5.5), App.Rotation())
sketch16.addGeometry(Part.Circle(Vector(33.5, 137, 0), Vector(0, 0, 1), 1.9), False)
sketch16.addConstraint([
    Sketcher.Constraint("Diameter", 0, Q("3.8 mm")),
    Sketcher.Constraint("DistanceY", -1, 1, 0, 3, Q("137 mm")),
    Sketcher.Constraint("DistanceX", -1, 1, 0, 3, Q("33.5 mm")),
])
sketch16.setExpression("Constraints[0]", "Params.sketch16_diameter")
pocket15 = body.newObject("PartDesign::Pocket", "Pocket014")
pocket15.Profile = sketch16
pocket15.Type = "UpToFirst"
pocket15.Reversed = True

sketch17 = body.newObject("Sketcher::SketchObject", "Sketch016")
sketch17.AttachmentSupport = (doc.getObject("XZ_Plane"), [""])
sketch17.MapMode = "FlatFace"
sketch17.AttachmentOffset = App.Placement(Vector(0, 0, -5.5), App.Rotation())
sketch17.addGeometry(Part.Circle(Vector(33.5, 176, 0), Vector(0, 0, 1), 1.9), False)
sketch17.addConstraint([
    Sketcher.Constraint("Diameter", 0, Q("3.8 mm")),
    Sketcher.Constraint("DistanceY", -1, 1, 0, 3, Q("176 mm")),
    Sketcher.Constraint("DistanceX", -1, 1, 0, 3, Q("33.5 mm")),
])
sketch17.setExpression("Constraints[0]", "Params.sketch17_diameter")
pocket16 = body.newObject("PartDesign::Pocket", "Pocket015")
pocket16.Profile = sketch17
pocket16.Type = "UpToFirst"
pocket16.Reversed = True

sketch18 = body.newObject("Sketcher::SketchObject", "Sketch017")
sketch18.AttachmentSupport = (doc.getObject("XZ_Plane"), [""])
sketch18.MapMode = "FlatFace"
sketch18.AttachmentOffset = App.Placement(Vector(0, 0, -5.5), App.Rotation())
sketch18.addGeometry(Part.Circle(Vector(-33.5, 176, 0), Vector(0, 0, 1), 1.9), False)
sketch18.addConstraint([
    Sketcher.Constraint("Diameter", 0, Q("3.8 mm")),
    Sketcher.Constraint("DistanceY", -1, 1, 0, 3, Q("176 mm")),
    Sketcher.Constraint("DistanceX", 0, 3, -1, 1, Q("33.5 mm")),
])
sketch18.setExpression("Constraints[0]", "Params.sketch18_diameter")
pocket17 = body.newObject("PartDesign::Pocket", "Pocket016")
pocket17.Profile = sketch18
pocket17.Type = "UpToFirst"
pocket17.Reversed = True

sketch19 = body.newObject("Sketcher::SketchObject", "Sketch018")
sketch19.AttachmentSupport = (doc.getObject("XZ_Plane"), [""])
sketch19.MapMode = "FlatFace"
sketch19.AttachmentOffset = App.Placement(Vector(0, 0, -5.5), App.Rotation())
sketch19.addGeometry(Part.Circle(Vector(-33.5, 137, 0), Vector(0, 0, 1), 1.9), False)
sketch19.addConstraint([
    Sketcher.Constraint("Diameter", 0, Q("3.8 mm")),
    Sketcher.Constraint("DistanceY", -1, 1, 0, 3, Q("137 mm")),
    Sketcher.Constraint("DistanceX", 0, 3, -1, 1, Q("33.5 mm")),
])
sketch19.setExpression("Constraints[0]", "Params.sketch19_diameter")
pocket18 = body.newObject("PartDesign::Pocket", "Pocket017")
pocket18.Profile = sketch19
pocket18.Type = "UpToFirst"
pocket18.Reversed = True

sketch20 = body.newObject("Sketcher::SketchObject", "Sketch019")
sketch20.AttachmentSupport = (doc.getObject("XZ_Plane"), [""])
sketch20.MapMode = "FlatFace"
sketch20.AttachmentOffset = App.Placement(Vector(0, 0, -5.5), App.Rotation())
sketch20.addGeometry(Part.Circle(Vector(-42.5, 58, 0), Vector(0, 0, 1), 1.75), False)
sketch20.addConstraint([
    Sketcher.Constraint("Diameter", 0, Q("3.5 mm")),
    Sketcher.Constraint("DistanceY", -1, 1, 0, 3, Q("58 mm")),
    Sketcher.Constraint("DistanceX", 0, 3, -1, 1, Q("42.5 mm")),
])
sketch20.setExpression("Constraints[0]", "Params.sketch20_diameter")
pocket19 = body.newObject("PartDesign::Pocket", "Pocket018")
pocket19.Profile = sketch20
pocket19.Type = "UpToFirst"
pocket19.Reversed = True

sketch21 = body.newObject("Sketcher::SketchObject", "Sketch020")
sketch21.AttachmentSupport = (doc.getObject("XZ_Plane"), [""])
sketch21.MapMode = "FlatFace"
sketch21.AttachmentOffset = App.Placement(Vector(0, 0, -5.5), App.Rotation())
sketch21.addGeometry(Part.Circle(Vector(42.5, 58, 0), Vector(0, 0, 1), 1.75), False)
sketch21.addConstraint([
    Sketcher.Constraint("Diameter", 0, Q("3.5 mm")),
    Sketcher.Constraint("DistanceY", -1, 1, 0, 3, Q("58 mm")),
    Sketcher.Constraint("DistanceX", -1, 1, 0, 3, Q("42.5 mm")),
])
sketch21.setExpression("Constraints[0]", "Params.sketch21_diameter")
pocket20 = body.newObject("PartDesign::Pocket", "Pocket019")
pocket20.Profile = sketch21
pocket20.Type = "UpToFirst"
pocket20.Reversed = True

sketch22 = body.newObject("Sketcher::SketchObject", "Sketch021")
sketch22.AttachmentSupport = (doc.getObject("XZ_Plane"), [""])
sketch22.MapMode = "FlatFace"
sketch22.AttachmentOffset = App.Placement(Vector(0, 0, -5.5), App.Rotation())
sketch22.addGeometry(Part.Circle(Vector(-15, -56.5, 0), Vector(0, 0, 1), 1.75), False)
sketch22.addConstraint([
    Sketcher.Constraint("Diameter", 0, Q("3.5 mm")),
    Sketcher.Constraint("DistanceX", 0, 3, -1, 1, Q("15 mm")),
    Sketcher.Constraint("DistanceY", 0, 3, -1, 1, Q("56.5 mm")),
])
sketch22.setExpression("Constraints[0]", "Params.sketch22_diameter")
pocket21 = body.newObject("PartDesign::Pocket", "Pocket020")
pocket21.Profile = sketch22
pocket21.Type = "UpToFirst"
pocket21.Reversed = True

sketch23 = body.newObject("Sketcher::SketchObject", "Sketch022")
sketch23.AttachmentSupport = (doc.getObject("XZ_Plane"), [""])
sketch23.MapMode = "FlatFace"
sketch23.AttachmentOffset = App.Placement(Vector(0, 0, -5.5), App.Rotation())
sketch23.addGeometry(Part.Circle(Vector(15, -56.5, 0), Vector(0, 0, 1), 1.75), False)
sketch23.addConstraint([
    Sketcher.Constraint("Diameter", 0, Q("3.5 mm")),
    Sketcher.Constraint("DistanceX", -1, 1, 0, 3, Q("15 mm")),
    Sketcher.Constraint("DistanceY", 0, 3, -1, 1, Q("56.5 mm")),
])
sketch23.setExpression("Constraints[0]", "Params.sketch23_diameter")
pocket22 = body.newObject("PartDesign::Pocket", "Pocket021")
pocket22.Profile = sketch23
pocket22.Type = "UpToFirst"
pocket22.Reversed = True

sketch24 = body.newObject("Sketcher::SketchObject", "Sketch023")
sketch24.AttachmentSupport = (doc.getObject("XZ_Plane"), [""])
sketch24.MapMode = "FlatFace"
sketch24.AttachmentOffset = App.Placement(Vector(0, 0, -5.5), App.Rotation())
sketch24.addGeometry([
    Part.Circle(Vector(-15, -56.5, 0), Vector(0, 0, 1), 3),
    Part.Circle(Vector(15, -56.5, 0), Vector(0, 0, 1), 3),
], False)
sketch24.addConstraint([
    Sketcher.Constraint("Equal", 0, 1),
    Sketcher.Constraint("Symmetric", 0, 3, 1, 3, -2),
    Sketcher.Constraint("Diameter", 0, Q("6 mm")),
    Sketcher.Constraint("DistanceX", 0, 3, -1, 1, Q("15 mm")),
    Sketcher.Constraint("DistanceY", 0, 3, -1, 1, Q("56.5 mm")),
])
sketch24.setExpression("Constraints[2]", "Params.sketch24_diameter")
pocket23 = body.newObject("PartDesign::Pocket", "Pocket022")
pocket23.Profile = sketch24
pocket23.setExpression("Length", "Params.pocket23_length")
pocket23.Reversed = True

doc.recompute()
